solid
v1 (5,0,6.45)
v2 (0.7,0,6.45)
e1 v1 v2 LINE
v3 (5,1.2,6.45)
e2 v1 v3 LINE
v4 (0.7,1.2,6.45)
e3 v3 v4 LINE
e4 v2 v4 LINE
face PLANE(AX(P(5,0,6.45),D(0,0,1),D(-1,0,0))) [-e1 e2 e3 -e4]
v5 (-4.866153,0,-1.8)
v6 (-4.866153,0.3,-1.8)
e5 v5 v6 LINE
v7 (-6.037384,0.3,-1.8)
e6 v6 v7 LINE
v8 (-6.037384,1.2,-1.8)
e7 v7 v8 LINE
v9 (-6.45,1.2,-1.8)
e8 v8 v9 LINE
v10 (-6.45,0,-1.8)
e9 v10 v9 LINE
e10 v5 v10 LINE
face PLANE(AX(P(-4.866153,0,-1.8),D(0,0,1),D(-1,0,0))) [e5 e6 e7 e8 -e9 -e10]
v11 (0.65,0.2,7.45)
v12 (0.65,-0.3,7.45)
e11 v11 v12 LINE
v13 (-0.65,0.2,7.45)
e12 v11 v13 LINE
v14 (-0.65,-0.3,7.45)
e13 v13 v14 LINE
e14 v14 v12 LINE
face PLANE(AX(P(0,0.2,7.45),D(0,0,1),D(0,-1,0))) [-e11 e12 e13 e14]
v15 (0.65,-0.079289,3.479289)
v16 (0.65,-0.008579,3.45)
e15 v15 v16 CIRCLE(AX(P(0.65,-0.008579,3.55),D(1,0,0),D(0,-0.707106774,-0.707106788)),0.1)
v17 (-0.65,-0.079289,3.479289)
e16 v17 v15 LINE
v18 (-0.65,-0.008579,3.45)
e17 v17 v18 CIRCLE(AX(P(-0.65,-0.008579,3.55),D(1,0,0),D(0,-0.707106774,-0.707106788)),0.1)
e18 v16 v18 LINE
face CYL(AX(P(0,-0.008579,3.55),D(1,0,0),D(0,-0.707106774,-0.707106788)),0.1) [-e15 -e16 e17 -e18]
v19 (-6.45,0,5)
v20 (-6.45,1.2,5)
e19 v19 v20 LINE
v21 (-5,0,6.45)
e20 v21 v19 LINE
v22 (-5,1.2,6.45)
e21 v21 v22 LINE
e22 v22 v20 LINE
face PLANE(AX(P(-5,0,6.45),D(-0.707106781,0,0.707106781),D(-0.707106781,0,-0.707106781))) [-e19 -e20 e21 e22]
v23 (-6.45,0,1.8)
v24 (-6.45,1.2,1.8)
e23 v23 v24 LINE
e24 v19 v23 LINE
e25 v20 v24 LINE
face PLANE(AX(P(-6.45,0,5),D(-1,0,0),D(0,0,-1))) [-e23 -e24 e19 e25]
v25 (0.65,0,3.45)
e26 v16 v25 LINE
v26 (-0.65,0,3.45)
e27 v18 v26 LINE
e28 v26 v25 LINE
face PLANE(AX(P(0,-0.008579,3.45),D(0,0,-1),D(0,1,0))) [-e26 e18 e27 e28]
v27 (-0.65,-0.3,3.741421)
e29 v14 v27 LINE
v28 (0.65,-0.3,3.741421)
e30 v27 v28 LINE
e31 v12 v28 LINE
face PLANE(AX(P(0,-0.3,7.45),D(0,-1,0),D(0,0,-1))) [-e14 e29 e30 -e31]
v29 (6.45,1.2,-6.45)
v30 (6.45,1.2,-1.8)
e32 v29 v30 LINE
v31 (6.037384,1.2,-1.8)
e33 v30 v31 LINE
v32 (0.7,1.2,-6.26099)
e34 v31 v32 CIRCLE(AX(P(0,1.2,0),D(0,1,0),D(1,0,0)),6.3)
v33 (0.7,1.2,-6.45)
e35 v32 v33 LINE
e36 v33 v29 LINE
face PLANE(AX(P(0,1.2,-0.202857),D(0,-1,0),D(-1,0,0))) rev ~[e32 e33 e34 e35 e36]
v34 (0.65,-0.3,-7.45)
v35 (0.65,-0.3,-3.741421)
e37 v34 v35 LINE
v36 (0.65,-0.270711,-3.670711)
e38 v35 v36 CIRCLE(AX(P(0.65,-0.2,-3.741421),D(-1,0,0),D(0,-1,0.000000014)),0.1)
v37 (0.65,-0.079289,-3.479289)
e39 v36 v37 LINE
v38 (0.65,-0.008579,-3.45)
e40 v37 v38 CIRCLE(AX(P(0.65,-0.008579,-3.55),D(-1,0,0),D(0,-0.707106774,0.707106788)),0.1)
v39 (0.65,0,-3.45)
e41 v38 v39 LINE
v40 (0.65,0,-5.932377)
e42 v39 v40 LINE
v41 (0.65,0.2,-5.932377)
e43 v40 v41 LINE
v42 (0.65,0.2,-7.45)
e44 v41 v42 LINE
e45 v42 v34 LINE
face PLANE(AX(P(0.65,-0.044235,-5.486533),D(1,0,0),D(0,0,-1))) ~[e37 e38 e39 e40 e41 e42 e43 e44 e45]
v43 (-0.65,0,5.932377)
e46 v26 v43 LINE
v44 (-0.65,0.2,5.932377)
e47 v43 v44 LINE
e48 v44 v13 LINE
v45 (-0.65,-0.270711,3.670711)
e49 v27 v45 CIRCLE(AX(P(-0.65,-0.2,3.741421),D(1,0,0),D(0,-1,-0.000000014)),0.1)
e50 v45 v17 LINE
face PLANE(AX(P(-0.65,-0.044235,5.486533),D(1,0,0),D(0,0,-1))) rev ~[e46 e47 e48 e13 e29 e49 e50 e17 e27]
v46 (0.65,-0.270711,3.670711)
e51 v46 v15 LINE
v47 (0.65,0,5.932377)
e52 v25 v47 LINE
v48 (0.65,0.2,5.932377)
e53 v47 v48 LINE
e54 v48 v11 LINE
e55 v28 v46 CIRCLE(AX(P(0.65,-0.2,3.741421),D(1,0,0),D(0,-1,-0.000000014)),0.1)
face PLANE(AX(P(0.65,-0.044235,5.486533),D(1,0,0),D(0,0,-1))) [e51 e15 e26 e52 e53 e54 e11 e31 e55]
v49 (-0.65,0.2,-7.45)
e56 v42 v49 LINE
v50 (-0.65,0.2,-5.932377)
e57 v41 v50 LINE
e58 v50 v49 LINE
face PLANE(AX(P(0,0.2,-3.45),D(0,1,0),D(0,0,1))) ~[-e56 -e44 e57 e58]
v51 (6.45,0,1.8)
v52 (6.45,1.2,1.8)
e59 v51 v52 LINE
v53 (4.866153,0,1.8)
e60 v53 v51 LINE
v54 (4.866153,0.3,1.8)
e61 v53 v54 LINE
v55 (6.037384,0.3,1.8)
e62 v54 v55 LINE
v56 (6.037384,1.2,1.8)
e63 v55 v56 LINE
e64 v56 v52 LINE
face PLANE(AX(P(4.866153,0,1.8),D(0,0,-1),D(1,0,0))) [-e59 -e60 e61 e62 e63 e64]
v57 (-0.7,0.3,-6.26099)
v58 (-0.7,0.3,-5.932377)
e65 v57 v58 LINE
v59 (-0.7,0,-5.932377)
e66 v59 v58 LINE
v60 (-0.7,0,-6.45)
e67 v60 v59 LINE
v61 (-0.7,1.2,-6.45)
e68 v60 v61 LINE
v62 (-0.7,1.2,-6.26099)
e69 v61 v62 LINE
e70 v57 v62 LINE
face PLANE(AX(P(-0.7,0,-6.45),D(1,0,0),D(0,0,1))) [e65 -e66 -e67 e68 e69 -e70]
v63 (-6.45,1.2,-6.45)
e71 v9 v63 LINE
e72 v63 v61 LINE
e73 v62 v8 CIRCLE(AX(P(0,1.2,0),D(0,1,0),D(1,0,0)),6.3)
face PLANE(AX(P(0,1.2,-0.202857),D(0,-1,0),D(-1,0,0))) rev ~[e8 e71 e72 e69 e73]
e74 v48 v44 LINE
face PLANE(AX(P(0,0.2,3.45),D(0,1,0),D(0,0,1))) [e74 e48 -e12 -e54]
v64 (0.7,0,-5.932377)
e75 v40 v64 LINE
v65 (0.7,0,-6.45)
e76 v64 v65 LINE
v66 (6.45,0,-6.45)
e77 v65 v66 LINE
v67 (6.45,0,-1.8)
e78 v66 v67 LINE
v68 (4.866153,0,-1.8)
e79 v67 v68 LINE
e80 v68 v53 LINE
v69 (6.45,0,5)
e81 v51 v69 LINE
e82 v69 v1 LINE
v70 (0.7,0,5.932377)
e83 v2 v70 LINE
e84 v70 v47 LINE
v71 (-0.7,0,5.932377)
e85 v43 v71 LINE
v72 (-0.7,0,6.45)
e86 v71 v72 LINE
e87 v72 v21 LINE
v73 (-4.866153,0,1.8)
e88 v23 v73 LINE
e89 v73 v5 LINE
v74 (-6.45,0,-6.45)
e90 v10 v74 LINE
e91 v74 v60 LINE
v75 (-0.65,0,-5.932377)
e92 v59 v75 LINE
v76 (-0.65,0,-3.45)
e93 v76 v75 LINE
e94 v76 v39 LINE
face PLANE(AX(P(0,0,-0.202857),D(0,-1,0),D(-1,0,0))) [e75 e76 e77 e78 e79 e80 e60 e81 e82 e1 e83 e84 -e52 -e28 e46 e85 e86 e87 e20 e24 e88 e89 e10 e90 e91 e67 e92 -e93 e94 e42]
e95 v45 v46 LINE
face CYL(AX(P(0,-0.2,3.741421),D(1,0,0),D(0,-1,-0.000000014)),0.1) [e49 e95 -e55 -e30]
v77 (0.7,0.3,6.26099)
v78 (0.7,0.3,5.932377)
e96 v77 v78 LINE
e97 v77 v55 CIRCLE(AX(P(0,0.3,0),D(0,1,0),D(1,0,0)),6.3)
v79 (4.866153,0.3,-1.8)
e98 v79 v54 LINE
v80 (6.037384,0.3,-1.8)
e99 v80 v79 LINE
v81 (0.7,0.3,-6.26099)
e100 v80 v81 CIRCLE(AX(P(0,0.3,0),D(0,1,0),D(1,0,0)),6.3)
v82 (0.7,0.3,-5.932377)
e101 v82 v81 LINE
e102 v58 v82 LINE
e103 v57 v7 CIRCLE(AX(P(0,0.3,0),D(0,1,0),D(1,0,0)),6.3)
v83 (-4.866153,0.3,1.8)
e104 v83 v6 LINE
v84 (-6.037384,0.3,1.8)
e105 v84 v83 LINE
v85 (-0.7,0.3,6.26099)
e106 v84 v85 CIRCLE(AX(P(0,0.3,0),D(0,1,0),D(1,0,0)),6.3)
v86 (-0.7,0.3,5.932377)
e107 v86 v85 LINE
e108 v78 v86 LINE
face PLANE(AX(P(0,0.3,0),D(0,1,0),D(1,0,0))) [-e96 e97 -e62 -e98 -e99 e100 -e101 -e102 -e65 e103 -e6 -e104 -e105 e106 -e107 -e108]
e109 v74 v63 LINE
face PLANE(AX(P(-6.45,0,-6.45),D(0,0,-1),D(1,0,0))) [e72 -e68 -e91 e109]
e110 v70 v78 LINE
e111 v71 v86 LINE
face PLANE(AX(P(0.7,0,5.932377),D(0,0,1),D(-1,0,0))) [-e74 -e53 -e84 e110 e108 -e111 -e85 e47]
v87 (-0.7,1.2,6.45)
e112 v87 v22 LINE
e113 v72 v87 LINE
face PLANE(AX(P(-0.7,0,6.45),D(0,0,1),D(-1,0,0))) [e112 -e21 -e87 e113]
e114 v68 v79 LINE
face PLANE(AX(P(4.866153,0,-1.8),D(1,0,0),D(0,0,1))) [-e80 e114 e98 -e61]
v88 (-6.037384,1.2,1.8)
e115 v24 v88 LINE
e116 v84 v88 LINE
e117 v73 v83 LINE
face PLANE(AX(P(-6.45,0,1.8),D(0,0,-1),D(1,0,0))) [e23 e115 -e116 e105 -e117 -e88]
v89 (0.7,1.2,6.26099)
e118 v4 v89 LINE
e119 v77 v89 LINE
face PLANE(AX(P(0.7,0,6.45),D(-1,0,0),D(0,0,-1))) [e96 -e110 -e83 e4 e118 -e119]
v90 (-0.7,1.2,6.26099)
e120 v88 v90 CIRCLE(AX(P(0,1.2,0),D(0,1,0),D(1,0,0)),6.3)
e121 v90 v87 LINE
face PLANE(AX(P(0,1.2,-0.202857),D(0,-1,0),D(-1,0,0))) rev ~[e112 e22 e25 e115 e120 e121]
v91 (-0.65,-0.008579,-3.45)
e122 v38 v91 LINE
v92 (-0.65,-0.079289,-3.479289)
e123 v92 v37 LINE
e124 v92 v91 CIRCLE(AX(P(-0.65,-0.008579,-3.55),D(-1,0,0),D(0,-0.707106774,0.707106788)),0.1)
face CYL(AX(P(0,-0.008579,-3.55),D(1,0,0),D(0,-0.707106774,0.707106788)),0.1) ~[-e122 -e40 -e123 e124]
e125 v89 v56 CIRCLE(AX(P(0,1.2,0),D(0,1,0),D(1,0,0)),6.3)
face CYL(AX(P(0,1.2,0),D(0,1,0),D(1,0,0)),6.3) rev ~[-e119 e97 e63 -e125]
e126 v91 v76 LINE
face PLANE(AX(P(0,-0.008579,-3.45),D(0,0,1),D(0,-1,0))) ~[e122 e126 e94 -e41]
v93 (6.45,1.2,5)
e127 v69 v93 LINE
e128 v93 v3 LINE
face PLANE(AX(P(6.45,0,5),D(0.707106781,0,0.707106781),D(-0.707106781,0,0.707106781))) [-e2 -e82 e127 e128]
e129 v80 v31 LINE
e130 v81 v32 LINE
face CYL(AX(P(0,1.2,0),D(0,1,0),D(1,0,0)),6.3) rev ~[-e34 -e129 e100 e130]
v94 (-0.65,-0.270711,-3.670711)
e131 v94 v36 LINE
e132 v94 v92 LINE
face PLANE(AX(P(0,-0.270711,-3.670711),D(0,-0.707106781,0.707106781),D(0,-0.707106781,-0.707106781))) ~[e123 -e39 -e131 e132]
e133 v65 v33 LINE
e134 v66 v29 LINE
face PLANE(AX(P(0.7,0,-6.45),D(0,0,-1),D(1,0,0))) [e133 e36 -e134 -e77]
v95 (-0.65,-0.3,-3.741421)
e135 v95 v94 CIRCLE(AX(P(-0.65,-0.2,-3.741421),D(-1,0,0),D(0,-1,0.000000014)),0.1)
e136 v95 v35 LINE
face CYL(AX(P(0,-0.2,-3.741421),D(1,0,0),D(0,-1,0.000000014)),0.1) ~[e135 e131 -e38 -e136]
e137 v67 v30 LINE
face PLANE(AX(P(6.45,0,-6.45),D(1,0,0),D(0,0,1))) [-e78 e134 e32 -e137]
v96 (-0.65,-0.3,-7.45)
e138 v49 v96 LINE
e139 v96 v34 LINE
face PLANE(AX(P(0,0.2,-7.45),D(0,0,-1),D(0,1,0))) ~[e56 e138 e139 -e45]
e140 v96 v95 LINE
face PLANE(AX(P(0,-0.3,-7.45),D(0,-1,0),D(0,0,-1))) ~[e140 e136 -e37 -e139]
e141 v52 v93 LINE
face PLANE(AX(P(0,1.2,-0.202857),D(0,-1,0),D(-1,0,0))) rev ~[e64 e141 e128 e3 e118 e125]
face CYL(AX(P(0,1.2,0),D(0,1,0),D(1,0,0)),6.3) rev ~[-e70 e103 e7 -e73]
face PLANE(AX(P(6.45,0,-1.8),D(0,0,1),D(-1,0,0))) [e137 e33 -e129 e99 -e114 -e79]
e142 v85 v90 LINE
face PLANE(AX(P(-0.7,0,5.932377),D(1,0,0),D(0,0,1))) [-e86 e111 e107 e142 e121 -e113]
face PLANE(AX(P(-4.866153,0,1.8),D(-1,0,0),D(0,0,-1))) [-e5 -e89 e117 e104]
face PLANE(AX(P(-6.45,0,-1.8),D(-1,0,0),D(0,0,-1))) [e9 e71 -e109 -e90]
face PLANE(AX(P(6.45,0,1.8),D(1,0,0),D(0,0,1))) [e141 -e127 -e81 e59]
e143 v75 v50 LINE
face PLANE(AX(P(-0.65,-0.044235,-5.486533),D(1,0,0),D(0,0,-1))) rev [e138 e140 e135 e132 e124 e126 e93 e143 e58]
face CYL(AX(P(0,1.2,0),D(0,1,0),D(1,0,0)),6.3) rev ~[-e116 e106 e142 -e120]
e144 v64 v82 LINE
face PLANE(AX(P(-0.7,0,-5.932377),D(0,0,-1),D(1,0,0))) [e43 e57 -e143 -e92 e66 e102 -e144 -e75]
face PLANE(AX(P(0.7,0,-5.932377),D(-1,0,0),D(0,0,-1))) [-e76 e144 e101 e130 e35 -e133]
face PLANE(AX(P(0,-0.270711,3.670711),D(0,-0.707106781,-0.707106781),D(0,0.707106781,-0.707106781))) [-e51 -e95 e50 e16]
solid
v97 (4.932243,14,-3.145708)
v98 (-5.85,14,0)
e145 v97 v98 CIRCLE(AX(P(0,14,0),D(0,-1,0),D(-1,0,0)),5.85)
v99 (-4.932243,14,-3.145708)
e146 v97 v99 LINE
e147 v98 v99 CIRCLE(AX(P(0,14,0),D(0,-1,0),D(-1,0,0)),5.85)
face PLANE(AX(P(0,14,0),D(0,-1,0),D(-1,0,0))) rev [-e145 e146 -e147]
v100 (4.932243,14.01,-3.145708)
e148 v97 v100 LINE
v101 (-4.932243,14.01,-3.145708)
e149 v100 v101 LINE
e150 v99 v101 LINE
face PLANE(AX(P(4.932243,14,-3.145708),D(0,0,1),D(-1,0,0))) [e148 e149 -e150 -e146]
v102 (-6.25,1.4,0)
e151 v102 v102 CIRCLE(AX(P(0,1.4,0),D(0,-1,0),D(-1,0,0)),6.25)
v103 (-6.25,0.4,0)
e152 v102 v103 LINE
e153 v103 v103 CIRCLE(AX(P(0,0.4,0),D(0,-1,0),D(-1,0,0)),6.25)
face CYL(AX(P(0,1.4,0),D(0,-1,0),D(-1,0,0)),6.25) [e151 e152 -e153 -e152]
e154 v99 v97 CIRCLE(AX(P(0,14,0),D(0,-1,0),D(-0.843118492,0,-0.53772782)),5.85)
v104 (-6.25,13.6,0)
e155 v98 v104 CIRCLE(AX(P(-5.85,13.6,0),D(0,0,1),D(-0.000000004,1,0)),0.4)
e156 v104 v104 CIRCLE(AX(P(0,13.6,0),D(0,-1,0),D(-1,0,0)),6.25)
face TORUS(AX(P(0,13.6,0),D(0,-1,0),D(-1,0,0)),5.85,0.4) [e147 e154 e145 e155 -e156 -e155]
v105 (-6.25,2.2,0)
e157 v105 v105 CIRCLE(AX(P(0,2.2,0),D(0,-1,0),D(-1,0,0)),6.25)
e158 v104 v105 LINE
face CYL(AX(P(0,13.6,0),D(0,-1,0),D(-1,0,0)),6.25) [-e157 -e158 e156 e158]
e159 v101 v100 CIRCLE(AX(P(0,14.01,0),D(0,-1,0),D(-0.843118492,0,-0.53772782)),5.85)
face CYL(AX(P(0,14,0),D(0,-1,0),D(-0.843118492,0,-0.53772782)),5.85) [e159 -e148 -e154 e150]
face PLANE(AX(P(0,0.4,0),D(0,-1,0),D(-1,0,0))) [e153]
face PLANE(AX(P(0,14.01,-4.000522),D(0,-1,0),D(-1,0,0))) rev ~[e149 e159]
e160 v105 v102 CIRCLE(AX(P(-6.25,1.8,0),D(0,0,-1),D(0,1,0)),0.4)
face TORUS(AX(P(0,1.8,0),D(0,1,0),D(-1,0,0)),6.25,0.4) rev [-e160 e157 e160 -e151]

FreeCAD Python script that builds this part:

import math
import FreeCAD as App
import Part
import Sketcher
from FreeCAD import Vector
Q = App.Units.Quantity


def add_polygon(sketch, points):
    """Adds a closed chain of lines whose ends are joined by coincident constraints."""
    first, n = sketch.GeometryCount, len(points)
    for a, b in zip(points, points[1:] + points[:1]):
        sketch.addGeometry(Part.LineSegment(App.Vector(*a, 0), App.Vector(*b, 0)), False)
    for i in range(n):
        sketch.addConstraint(Sketcher.Constraint("Coincident", first + i, 2, first + (i + 1) % n, 1))

doc = App.newDocument("Part")
body = doc.addObject("PartDesign::Body", "Body")

# Sketch on XZ plane
sketch1 = body.newObject("Sketcher::SketchObject", "Sketch")
sketch1.AttachmentSupport = (doc.getObject("XZ_Plane"), [""])
sketch1.MapMode = "FlatFace"
add_polygon(sketch1, [(-0.7, -6.5), (-6.5, -6.5), (-6.5, -1.8), (-4.9, -1.8), (-4.9, 1.8), (-6.5, 1.8), (-6.5, 5), (-5, 6.5), (-0.7, 6.5), (-0.7, 5.9), (0.7, 5.9), (0.7, 6.5), (5, 6.5), (6.5, 5), (6.5, 1.8), (4.9, 1.8), (4.9, -1.8), (6.5, -1.8), (6.5, -6.5), (0.7, -6.5), (0.7, -5.9), (-0.7, -5.9)])  # lines 0-21
sketch1.addConstraint(Sketcher.Constraint("Horizontal", 0))
sketch1.addConstraint(Sketcher.Constraint("Vertical", 1))
sketch1.addConstraint(Sketcher.Constraint("Horizontal", 2))
sketch1.addConstraint(Sketcher.Constraint("Vertical", 3))
sketch1.addConstraint(Sketcher.Constraint("Horizontal", 4))
sketch1.addConstraint(Sketcher.Constraint("Vertical", 5))
sketch1.addConstraint(Sketcher.Constraint("Horizontal", 7))
sketch1.addConstraint(Sketcher.Constraint("Vertical", 8))
sketch1.addConstraint(Sketcher.Constraint("Horizontal", 9))
sketch1.addConstraint(Sketcher.Constraint("Vertical", 10))
sketch1.addConstraint(Sketcher.Constraint("Horizontal", 11))
sketch1.addConstraint(Sketcher.Constraint("Vertical", 13))
sketch1.addConstraint(Sketcher.Constraint("Horizontal", 14))
sketch1.addConstraint(Sketcher.Constraint("Vertical", 15))
sketch1.addConstraint(Sketcher.Constraint("Horizontal", 16))
sketch1.addConstraint(Sketcher.Constraint("Vertical", 17))
sketch1.addConstraint(Sketcher.Constraint("Horizontal", 18))
sketch1.addConstraint(Sketcher.Constraint("Vertical", 19))
sketch1.addConstraint(Sketcher.Constraint("Horizontal", 20))
sketch1.addConstraint(Sketcher.Constraint("Vertical", 21))
sketch1.addConstraint(Sketcher.Constraint("Symmetric", 1, 2, 13, 2, -1, 1))
sketch1.addConstraint(Sketcher.Constraint("Symmetric", 3, 2, 15, 2, -1, 1))
sketch1.addConstraint(Sketcher.Constraint("Symmetric", 7, 2, 18, 2, -1, 1))
sketch1.addConstraint(Sketcher.Constraint("Symmetric", 9, 2, 20, 2, -1, 1))
sketch1.addConstraint(Sketcher.Constraint("Symmetric", 7, 2, 10, 2, -2))
sketch1.addConstraint(Sketcher.Constraint("Symmetric", 5, 2, 12, 2, -2))
sketch1.addConstraint(Sketcher.Constraint("Symmetric", 1, 2, 16, 2, -2))
sketch1.addConstraint(Sketcher.Constraint("Perpendicular", 6, 12))
sketch1.addConstraint(Sketcher.Constraint("Horizontal", 0, 2, 17, 2))
sketch1.addConstraint(Sketcher.Constraint("Equal", 7, 11))
sketch1.addConstraint(Sketcher.Constraint("DistanceX", 7, 1, 7, 2, 4.3))
sketch1.addConstraint(Sketcher.Constraint("DistanceX", 9, 1, 9, 2, 1.4))
sketch1.addConstraint(Sketcher.Constraint("DistanceY", 3, 1, 3, 2, 3.6))
sketch1.addConstraint(Sketcher.Constraint("DistanceY", 5, 1, 5, 2, 3.2))
sketch1.addConstraint(Sketcher.Constraint("DistanceX", 0, 2, 0, 1, 5.75))
sketch1.addConstraint(Sketcher.Constraint("DistanceX", 2, 1, 2, 2, 1.583847))
sketch1.addConstraint(Sketcher.Constraint("DistanceY", 8, 2, 8, 1, 0.517623))
pad1 = body.newObject("PartDesign::Pad", "Pad")
pad1.Profile = sketch1
pad1.Length = 1.2
pad1.Reversed = True

# Sketch on XZ plane
sketch2 = body.newObject("Sketcher::SketchObject", "Sketch001")
sketch2.AttachmentSupport = (doc.getObject("XZ_Plane"), [""])
sketch2.MapMode = "FlatFace"
sketch2.AttachmentOffset = App.Placement(Vector(0, 0, -1.2), App.Rotation())
sketch2.addGeometry(Part.Circle(Vector(0, 0, 0), Vector(0, 0, 1), 6), False)
sketch2.addConstraint(Sketcher.Constraint("Coincident", 0, 3, -1, 1))
sketch2.addConstraint(Sketcher.Constraint("Diameter", 0, 12.6))
pocket1 = body.newObject("PartDesign::Pocket", "Pocket")
pocket1.Profile = sketch2
pocket1.Length = 0.9
pocket1.Reversed = True

# Sketch on YZ plane
sketch3 = body.newObject("Sketcher::SketchObject", "Sketch002")
sketch3.AttachmentSupport = (doc.getObject("YZ_Plane"), [""])
sketch3.MapMode = "FlatFace"
sketch3.addGeometry(Part.LineSegment(Vector(0.2, 7.45, 0), Vector(-0.3, 7.45, 0)), False)
sketch3.addGeometry(Part.LineSegment(Vector(-0.3, 7.45, 0), Vector(-0.3, 3.74, 0)), False)
sketch3.addGeometry(Part.ArcOfCircle(Part.Circle(Vector(-0.2, 3.74, 0), Vector(0, 0, 1), 0.1), math.radians(-180), math.radians(-135)), False)
sketch3.addGeometry(Part.LineSegment(Vector(-0.27, 3.67, 0), Vector(-0.08, 3.48, 0)), False)
sketch3.addGeometry(Part.ArcOfCircle(Part.Circle(Vector(-0.01, 3.55, 0), Vector(0, 0, 1), 0.1), math.radians(-135), math.radians(-90)), False)
sketch3.addGeometry(Part.LineSegment(Vector(-0.01, 3.45, 0), Vector(0.2, 3.45, 0)), False)
sketch3.addGeometry(Part.LineSegment(Vector(0.2, 3.45, 0), Vector(0.2, 7.45, 0)), False)
sketch3.addConstraint(Sketcher.Constraint("Coincident", 0, 2, 1, 1))
sketch3.addConstraint(Sketcher.Constraint("Tangent", 1, 2, 2, 1))
sketch3.addConstraint(Sketcher.Constraint("Tangent", 2, 2, 3, 1))
sketch3.addConstraint(Sketcher.Constraint("Tangent", 3, 2, 4, 1))
sketch3.addConstraint(Sketcher.Constraint("Tangent", 4, 2, 5, 1))
sketch3.addConstraint(Sketcher.Constraint("Coincident", 5, 2, 6, 1))
sketch3.addConstraint(Sketcher.Constraint("Coincident", 6, 2, 0, 1))
sketch3.addConstraint(Sketcher.Constraint("Horizontal", 0))
sketch3.addConstraint(Sketcher.Constraint("Vertical", 1))
sketch3.addConstraint(Sketcher.Constraint("Horizontal", 5))
sketch3.addConstraint(Sketcher.Constraint("Vertical", 6))
sketch3.addConstraint(Sketcher.Constraint("Equal", 2, 4))
sketch3.addConstraint(Sketcher.Constraint("Radius", 2, 0.1))
sketch3.addConstraint(Sketcher.Constraint("DistanceY", 6, 1, 6, 2, 4.0))
sketch3.addConstraint(Sketcher.Constraint("Angle", 3, Q("-45 deg")))
sketch3.addConstraint(Sketcher.Constraint("DistanceX", 0, 2, 0, 1, 0.5))
sketch3.addConstraint(Sketcher.Constraint("DistanceX", 2, 3, -1, 1, 0.2))
sketch3.addConstraint(Sketcher.Constraint("DistanceY", -1, 1, 4, 3, 3.55))
sketch3.addConstraint(Sketcher.Constraint("DistanceX", 5, 1, 5, 2, 0.208579))
pad2 = body.newObject("PartDesign::Pad", "Pad001")
pad2.Profile = sketch3
pad2.Length = 1.3
pad2.Midplane = True
doc.recompute()

mirrored = body.newObject("PartDesign::Mirrored", "Mirrored")
mirrored.Originals = [pad2]
mirrored.MirrorPlane = (doc.getObject("XY_Plane"), [""])
body.Tip = mirrored
body2 = doc.addObject("PartDesign::Body", "Body001")

# Sketch on XY plane
sketch4 = body2.newObject("Sketcher::SketchObject", "Sketch003")
sketch4.AttachmentSupport = (doc.getObject("XY_Plane001"), [""])
sketch4.MapMode = "FlatFace"
sketch4.addGeometry(Part.LineSegment(Vector(-6.25, 13.6, 0), Vector(-6.25, 2.2, 0)), False)
sketch4.addGeometry(Part.ArcOfCircle(Part.Circle(Vector(-6.25, 1.8, 0), Vector(0, 0, 1), 0.4), math.radians(-90), math.radians(90)), False)
sketch4.addGeometry(Part.LineSegment(Vector(-6.25, 1.4, 0), Vector(-6.25, 0.4, 0)), False)
sketch4.addGeometry(Part.LineSegment(Vector(-6.25, 0.4, 0), Vector(0, 0.4, 0)), False)
sketch4.addGeometry(Part.LineSegment(Vector(0, 0.4, 0), Vector(0, 14, 0)), False)
sketch4.addGeometry(Part.LineSegment(Vector(0, 14, 0), Vector(-5.85, 14, 0)), False)
sketch4.addGeometry(Part.ArcOfCircle(Part.Circle(Vector(-5.85, 13.6, 0), Vector(0, 0, 1), 0.4), math.radians(90), math.radians(180)), False)
sketch4.addConstraint(Sketcher.Constraint("Coincident", 0, 2, 1, 2))
sketch4.addConstraint(Sketcher.Constraint("Coincident", 1, 1, 2, 1))
sketch4.addConstraint(Sketcher.Constraint("Coincident", 2, 2, 3, 1))
sketch4.addConstraint(Sketcher.Constraint("Coincident", 3, 2, 4, 1))
sketch4.addConstraint(Sketcher.Constraint("Coincident", 4, 2, 5, 1))
sketch4.addConstraint(Sketcher.Constraint("Tangent", 5, 2, 6, 1))
sketch4.addConstraint(Sketcher.Constraint("Tangent", 6, 2, 0, 1))
sketch4.addConstraint(Sketcher.Constraint("Vertical", 0))
sketch4.addConstraint(Sketcher.Constraint("Vertical", 2))
sketch4.addConstraint(Sketcher.Constraint("Horizontal", 3))
sketch4.addConstraint(Sketcher.Constraint("Vertical", 4))
sketch4.addConstraint(Sketcher.Constraint("Horizontal", 5))
sketch4.addConstraint(Sketcher.Constraint("Equal", 1, 6))
sketch4.addConstraint(Sketcher.Constraint("PointOnObject", 3, 2, -2))
sketch4.addConstraint(Sketcher.Constraint("Vertical", 1, 3, 0, 2))
sketch4.addConstraint(Sketcher.Constraint("Vertical", 0, 2, 1, 1))
sketch4.addConstraint(Sketcher.Constraint("Radius", 1, 0.4))
sketch4.addConstraint(Sketcher.Constraint("DistanceY", 2, 2, 2, 1, 1.0))
sketch4.addConstraint(Sketcher.Constraint("DistanceY", 0, 2, 0, 1, 11.4))
sketch4.addConstraint(Sketcher.Constraint("DistanceY", -1, 1, 4, 2, 14.0))
sketch4.addConstraint(Sketcher.Constraint("DistanceX", 3, 1, 3, 2, 6.25))
revolution = body2.newObject("PartDesign::Revolution", "Revolution")
revolution.Profile = sketch4
revolution.ReferenceAxis = (sketch4, ["V_Axis"])
revolution.Angle = 360

# Sketch on XZ plane
sketch5 = body2.newObject("Sketcher::SketchObject", "Sketch004")
sketch5.AttachmentSupport = (doc.getObject("XZ_Plane001"), [""])
sketch5.MapMode = "FlatFace"
sketch5.AttachmentOffset = App.Placement(Vector(0, 0, -14), App.Rotation())
sketch5.addGeometry(Part.LineSegment(Vector(-5, -3, 0), Vector(5, -3, 0)), False)
sketch5.addGeometry(Part.ArcOfCircle(Part.Circle(Vector(0, 0, 0), Vector(0, 0, 1), 6), math.radians(-147), math.radians(-33)), False)
sketch5.addConstraint(Sketcher.Constraint("Coincident", 0, 1, 1, 1))
sketch5.addConstraint(Sketcher.Constraint("Coincident", 1, 2, 0, 2))
sketch5.addConstraint(Sketcher.Constraint("Horizontal", 0))
sketch5.addConstraint(Sketcher.Constraint("Coincident", 1, 3, -1, 1))
sketch5.addConstraint(Sketcher.Constraint("Radius", 1, 5.85))
sketch5.addConstraint(Sketcher.Constraint("DistanceX", 0, 1, 0, 2, 9.864486))
pad3 = body2.newObject("PartDesign::Pad", "Pad002")
pad3.Profile = sketch5
pad3.Length = 0.01
pad3.Reversed = True

doc.recompute()
